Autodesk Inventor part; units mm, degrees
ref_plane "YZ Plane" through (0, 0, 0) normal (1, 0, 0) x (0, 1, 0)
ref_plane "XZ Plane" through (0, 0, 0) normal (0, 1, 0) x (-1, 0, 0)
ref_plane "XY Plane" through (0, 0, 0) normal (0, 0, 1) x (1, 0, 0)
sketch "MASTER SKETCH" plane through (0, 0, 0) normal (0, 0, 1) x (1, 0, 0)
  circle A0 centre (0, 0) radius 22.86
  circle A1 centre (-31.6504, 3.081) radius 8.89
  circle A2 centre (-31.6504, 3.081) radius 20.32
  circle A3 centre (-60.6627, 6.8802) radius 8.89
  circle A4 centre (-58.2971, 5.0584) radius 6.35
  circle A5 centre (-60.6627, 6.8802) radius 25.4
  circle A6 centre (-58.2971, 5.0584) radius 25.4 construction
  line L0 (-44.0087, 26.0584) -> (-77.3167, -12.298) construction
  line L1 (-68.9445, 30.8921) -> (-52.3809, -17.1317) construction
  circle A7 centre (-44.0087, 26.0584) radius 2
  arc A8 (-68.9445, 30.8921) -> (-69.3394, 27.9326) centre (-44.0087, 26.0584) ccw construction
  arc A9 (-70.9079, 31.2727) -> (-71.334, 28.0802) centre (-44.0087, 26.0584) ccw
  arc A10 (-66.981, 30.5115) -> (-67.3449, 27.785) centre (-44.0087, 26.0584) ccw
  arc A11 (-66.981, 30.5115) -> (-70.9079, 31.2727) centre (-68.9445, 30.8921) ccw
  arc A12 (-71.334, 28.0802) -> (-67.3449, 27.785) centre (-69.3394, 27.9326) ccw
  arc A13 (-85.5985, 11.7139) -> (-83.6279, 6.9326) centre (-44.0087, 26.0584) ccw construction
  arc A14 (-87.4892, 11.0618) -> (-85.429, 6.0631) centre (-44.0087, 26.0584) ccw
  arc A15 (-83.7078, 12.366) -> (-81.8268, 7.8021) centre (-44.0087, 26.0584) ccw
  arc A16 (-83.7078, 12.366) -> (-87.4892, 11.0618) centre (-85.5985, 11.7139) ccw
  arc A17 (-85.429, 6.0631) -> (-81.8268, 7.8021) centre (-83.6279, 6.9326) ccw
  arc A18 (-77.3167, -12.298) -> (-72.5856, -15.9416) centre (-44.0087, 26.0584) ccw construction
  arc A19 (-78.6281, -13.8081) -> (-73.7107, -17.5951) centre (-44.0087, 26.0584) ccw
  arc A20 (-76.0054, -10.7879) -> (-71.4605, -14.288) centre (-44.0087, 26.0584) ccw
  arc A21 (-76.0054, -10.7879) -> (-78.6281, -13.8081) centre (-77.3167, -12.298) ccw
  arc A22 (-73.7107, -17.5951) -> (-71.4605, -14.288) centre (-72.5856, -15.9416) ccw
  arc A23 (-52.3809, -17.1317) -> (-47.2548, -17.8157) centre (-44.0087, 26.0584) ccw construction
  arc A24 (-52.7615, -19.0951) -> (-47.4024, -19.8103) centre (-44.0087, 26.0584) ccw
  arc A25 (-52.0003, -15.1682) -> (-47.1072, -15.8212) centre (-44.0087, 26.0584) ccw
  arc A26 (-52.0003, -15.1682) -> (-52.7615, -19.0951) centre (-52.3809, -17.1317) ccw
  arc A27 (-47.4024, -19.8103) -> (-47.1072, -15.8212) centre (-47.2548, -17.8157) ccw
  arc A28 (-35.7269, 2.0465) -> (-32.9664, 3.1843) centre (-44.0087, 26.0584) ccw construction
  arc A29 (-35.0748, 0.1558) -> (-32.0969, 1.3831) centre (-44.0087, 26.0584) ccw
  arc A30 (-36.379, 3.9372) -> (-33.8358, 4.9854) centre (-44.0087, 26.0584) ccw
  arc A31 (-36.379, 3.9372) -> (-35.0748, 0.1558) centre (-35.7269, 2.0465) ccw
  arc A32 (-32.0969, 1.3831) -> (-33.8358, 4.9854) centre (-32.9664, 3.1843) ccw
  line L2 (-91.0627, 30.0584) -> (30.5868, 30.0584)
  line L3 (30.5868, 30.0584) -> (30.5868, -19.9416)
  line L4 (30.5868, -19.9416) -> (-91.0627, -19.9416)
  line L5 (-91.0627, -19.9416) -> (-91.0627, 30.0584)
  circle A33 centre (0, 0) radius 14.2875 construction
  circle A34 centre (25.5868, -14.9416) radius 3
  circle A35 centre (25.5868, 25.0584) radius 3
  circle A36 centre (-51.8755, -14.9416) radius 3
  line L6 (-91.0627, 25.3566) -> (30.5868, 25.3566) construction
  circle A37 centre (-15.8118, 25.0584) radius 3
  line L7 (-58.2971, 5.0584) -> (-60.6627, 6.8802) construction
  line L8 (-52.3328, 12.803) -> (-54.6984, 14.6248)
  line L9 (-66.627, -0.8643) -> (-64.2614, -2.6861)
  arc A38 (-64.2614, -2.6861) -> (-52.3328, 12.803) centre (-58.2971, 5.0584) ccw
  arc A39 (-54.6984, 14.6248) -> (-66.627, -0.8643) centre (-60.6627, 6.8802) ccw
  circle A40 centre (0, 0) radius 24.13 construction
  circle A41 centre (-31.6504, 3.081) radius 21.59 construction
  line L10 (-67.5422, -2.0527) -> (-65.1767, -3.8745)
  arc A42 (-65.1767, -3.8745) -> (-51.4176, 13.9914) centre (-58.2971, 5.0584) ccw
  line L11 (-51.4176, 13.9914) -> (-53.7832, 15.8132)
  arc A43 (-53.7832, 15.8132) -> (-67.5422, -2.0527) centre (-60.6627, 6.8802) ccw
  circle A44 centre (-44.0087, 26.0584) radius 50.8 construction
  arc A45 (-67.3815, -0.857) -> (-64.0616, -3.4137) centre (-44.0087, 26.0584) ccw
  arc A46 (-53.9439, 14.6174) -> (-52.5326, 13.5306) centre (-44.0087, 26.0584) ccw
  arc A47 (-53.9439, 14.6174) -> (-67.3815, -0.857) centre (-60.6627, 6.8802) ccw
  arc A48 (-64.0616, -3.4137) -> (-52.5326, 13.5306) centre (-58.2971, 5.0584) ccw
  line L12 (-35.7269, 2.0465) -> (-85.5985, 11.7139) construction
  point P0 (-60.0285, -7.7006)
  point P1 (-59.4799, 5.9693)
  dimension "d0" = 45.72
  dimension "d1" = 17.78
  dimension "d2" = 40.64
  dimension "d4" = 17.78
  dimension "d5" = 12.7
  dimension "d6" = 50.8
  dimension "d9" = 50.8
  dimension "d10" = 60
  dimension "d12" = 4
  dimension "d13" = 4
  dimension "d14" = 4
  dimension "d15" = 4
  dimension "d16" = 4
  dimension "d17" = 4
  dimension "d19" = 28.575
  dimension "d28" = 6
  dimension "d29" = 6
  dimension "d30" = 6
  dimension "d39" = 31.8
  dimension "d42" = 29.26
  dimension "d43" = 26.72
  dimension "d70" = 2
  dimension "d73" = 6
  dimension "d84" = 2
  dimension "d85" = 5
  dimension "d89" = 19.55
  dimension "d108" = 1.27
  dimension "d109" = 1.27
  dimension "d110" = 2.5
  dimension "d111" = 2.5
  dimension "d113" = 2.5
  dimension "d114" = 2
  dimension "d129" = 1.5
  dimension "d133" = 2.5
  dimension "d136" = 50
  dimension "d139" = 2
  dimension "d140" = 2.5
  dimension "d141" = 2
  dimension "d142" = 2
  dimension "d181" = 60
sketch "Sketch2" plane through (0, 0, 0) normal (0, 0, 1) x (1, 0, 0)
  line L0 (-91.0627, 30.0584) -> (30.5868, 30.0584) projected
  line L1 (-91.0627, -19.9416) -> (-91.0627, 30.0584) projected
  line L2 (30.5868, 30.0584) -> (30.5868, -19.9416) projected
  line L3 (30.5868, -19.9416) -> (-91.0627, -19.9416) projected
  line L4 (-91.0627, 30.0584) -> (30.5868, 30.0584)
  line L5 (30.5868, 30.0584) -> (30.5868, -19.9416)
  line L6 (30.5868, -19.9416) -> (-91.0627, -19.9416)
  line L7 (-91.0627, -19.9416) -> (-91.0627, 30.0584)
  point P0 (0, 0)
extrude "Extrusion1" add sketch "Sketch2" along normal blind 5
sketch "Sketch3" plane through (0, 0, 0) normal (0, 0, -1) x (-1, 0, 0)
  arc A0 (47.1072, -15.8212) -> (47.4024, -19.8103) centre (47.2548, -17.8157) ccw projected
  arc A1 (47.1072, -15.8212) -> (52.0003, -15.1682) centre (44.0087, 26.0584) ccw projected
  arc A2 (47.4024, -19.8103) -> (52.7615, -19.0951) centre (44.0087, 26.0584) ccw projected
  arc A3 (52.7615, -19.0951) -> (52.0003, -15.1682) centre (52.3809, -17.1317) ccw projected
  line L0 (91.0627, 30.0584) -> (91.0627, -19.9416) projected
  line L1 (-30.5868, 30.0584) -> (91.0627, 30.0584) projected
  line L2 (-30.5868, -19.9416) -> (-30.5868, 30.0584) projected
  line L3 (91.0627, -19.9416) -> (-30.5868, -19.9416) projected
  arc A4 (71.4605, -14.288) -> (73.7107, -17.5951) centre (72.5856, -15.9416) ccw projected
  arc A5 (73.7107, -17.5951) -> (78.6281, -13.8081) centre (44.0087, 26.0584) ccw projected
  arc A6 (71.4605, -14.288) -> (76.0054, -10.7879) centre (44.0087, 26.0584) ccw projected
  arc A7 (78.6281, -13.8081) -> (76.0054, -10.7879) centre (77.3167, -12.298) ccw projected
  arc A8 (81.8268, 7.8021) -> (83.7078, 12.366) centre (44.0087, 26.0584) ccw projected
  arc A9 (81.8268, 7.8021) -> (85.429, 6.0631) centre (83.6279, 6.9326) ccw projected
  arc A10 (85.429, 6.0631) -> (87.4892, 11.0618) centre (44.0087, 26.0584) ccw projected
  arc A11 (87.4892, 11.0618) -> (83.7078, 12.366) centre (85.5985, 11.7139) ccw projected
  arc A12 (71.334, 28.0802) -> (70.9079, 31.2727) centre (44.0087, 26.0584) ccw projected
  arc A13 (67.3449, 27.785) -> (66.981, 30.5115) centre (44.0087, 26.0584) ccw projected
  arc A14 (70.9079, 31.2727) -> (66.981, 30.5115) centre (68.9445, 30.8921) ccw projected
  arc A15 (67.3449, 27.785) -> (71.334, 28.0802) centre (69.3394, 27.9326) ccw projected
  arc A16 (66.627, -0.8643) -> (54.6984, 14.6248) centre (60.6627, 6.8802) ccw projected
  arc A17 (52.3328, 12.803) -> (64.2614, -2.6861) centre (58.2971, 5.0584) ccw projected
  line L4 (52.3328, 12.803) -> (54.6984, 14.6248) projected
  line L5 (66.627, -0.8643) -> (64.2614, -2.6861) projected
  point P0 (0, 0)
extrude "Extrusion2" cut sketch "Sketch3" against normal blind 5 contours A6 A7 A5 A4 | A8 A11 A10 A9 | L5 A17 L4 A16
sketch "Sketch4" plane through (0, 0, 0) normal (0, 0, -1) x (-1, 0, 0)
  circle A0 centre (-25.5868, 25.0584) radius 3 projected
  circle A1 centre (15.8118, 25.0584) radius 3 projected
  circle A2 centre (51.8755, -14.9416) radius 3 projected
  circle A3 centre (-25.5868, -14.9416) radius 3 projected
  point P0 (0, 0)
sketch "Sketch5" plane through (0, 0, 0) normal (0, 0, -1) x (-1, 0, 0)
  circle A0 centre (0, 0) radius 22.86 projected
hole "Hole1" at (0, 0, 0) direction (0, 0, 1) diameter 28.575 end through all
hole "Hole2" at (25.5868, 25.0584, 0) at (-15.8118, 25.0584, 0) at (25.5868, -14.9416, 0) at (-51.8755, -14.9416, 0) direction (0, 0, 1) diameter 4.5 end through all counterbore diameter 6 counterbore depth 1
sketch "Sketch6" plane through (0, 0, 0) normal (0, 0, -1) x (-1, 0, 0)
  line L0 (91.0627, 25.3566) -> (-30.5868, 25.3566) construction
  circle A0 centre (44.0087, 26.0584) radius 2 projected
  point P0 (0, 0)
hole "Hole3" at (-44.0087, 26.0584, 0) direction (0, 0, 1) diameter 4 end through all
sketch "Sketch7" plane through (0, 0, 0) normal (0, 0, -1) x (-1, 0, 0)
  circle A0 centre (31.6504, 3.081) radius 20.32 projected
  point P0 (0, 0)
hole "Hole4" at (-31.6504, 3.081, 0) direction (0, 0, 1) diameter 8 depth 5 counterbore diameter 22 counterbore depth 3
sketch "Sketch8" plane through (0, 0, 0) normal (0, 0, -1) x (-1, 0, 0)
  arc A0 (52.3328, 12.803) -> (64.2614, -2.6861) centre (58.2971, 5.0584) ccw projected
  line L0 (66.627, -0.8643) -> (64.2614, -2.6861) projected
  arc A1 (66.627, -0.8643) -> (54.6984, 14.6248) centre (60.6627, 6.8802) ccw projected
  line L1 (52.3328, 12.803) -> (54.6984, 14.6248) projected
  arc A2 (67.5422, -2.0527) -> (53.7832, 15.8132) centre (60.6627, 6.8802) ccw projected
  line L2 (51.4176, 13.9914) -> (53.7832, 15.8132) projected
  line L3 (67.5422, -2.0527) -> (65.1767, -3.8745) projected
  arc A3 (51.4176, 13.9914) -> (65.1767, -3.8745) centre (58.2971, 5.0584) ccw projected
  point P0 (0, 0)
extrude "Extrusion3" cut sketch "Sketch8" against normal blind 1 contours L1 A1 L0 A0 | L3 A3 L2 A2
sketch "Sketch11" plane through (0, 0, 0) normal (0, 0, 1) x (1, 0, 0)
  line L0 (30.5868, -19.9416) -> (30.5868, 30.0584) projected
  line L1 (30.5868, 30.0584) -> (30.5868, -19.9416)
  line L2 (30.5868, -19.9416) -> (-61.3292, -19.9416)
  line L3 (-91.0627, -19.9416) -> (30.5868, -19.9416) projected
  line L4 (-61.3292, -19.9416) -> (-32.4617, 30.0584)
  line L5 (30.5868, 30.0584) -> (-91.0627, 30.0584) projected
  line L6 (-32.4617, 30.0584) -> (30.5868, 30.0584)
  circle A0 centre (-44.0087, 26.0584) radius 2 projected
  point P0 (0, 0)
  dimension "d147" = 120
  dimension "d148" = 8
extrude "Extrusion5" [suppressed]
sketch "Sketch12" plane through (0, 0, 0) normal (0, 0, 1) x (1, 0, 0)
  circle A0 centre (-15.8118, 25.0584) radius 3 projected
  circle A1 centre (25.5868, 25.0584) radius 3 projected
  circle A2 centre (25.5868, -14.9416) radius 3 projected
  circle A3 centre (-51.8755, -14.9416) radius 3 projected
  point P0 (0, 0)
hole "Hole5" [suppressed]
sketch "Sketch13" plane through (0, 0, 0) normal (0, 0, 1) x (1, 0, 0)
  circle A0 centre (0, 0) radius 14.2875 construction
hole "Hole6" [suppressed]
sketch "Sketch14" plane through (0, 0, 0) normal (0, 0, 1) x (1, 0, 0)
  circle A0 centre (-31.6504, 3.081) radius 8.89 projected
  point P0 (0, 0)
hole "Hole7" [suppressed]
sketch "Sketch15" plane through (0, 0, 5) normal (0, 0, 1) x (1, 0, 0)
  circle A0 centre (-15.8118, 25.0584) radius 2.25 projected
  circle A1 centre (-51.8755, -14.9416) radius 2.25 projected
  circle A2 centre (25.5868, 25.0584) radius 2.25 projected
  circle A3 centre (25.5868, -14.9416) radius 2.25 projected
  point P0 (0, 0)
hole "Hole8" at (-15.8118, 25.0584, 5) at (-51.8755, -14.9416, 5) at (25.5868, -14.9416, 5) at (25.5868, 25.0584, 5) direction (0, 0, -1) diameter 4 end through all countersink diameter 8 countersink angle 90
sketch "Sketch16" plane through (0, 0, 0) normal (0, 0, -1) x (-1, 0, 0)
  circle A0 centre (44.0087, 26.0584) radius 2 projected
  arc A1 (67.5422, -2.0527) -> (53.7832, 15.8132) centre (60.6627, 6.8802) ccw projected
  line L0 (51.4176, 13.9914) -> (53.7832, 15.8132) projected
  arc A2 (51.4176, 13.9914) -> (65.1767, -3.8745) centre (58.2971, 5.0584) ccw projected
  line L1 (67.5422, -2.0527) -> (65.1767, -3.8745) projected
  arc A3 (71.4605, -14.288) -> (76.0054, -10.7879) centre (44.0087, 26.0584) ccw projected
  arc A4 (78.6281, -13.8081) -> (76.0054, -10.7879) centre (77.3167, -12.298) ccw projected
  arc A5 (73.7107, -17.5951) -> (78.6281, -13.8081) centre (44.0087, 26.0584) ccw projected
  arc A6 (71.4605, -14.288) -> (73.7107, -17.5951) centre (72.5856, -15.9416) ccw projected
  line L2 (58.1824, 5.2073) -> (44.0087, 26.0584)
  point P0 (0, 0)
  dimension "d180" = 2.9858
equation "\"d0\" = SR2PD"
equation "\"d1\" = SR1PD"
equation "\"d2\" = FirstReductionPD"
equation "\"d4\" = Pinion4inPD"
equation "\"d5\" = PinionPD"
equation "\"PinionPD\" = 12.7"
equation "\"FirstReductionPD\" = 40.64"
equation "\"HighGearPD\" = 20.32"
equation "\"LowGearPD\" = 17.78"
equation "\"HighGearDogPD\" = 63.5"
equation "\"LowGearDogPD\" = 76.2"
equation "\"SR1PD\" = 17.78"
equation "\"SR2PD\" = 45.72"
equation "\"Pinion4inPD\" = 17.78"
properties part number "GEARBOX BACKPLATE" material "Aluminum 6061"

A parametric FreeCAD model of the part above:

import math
import FreeCAD as App
import Part
import Sketcher
from FreeCAD import Vector
Q = App.Units.Quantity

doc = App.newDocument("Part")
params = doc.addObject("Spreadsheet::Sheet", "Params")
for row, (alias, value) in enumerate([
    ("sketch1_height", "50 mm"),
    ("pad1_length", "5 mm"),
    ("sketch2_radius", "2 mm"),
    ("pocket1_length", "5 mm"),
    ("hole_diameter", "28.575 mm"),
    ("sketch4_diameter", "4.5 mm"),
    ("hole2_diameter", "4.5 mm"),
    ("hole2_cbore_diameter", "6 mm"),
    ("hole2_cbore_depth", "1 mm"),
    ("sketch5_diameter", "4 mm"),
    ("hole3_diameter", "4 mm"),
    ("sketch6_diameter", "8 mm"),
    ("hole4_diameter", "8 mm"),
    ("hole4_depth", "5 mm"),
    ("hole4_cbore_diameter", "22 mm"),
    ("hole4_cbore_depth", "3 mm"),
    ("pocket2_length", "1 mm"),
    ("sketch8_diameter", "4 mm"),
    ("hole5_diameter", "4 mm"),
    ("hole5_csink_diameter", "8 mm"),
], start=1):
    params.set(f"A{row}", alias)
    params.set(f"B{row}", "=" + value)
    params.setAlias(f"B{row}", alias)

body = doc.addObject("PartDesign::Body", "Body")

sketch1 = body.newObject("Sketcher::SketchObject", "Sketch")
sketch1.AttachmentSupport = (doc.getObject("XY_Plane"), [""])
sketch1.MapMode = "FlatFace"
sketch1.addGeometry([
    Part.LineSegment(Vector(30.5868, 30.0584, 0), Vector(-91.0627, 30.0584, 0)),
    Part.LineSegment(Vector(-91.0627, 30.0584, 0), Vector(-91.0627, -19.9416, 0)),
    Part.LineSegment(Vector(-91.0627, -19.9416, 0), Vector(30.5868, -19.9416, 0)),
    Part.LineSegment(Vector(30.5868, -19.9416, 0), Vector(30.5868, 30.0584, 0)),
], False)
sketch1.addConstraint([
    Sketcher.Constraint("Coincident", 0, 2, 1, 1),
    Sketcher.Constraint("Coincident", 1, 2, 2, 1),
    Sketcher.Constraint("Coincident", 2, 2, 3, 1),
    Sketcher.Constraint("Coincident", 3, 2, 0, 1),
    Sketcher.Constraint("Horizontal", 0),
    Sketcher.Constraint("Vertical", 1),
    Sketcher.Constraint("Horizontal", 2),
    Sketcher.Constraint("Vertical", 3),
    Sketcher.Constraint("DistanceY", 1, 2, 1, 1, 50.0),
    Sketcher.Constraint("DistanceX", 0, 2, 0, 1, 121.6495),
    Sketcher.Constraint("DistanceX", 0, 2, -1, 1, 91.0627),
    Sketcher.Constraint("DistanceY", -1, 1, 0, 2, 30.0584),
])
sketch1.setExpression("Constraints[8]", "Params.sketch1_height")
pad1 = body.newObject("PartDesign::Pad", "Pad")
pad1.Profile = sketch1
pad1.setExpression("Length", "Params.pad1_length")

sketch2 = body.newObject("Sketcher::SketchObject", "Sketch001")
sketch2.AttachmentSupport = (doc.getObject("XY_Plane"), [""])
sketch2.MapMode = "FlatFace"
sketch2.addGeometry([
    Part.ArcOfCircle(Part.Circle(Vector(-43.999448, 26.071174, 0), Vector(0, 0, 1), 48.815697), math.radians(-130.968862), math.radians(-124.232021)),
    Part.ArcOfCircle(Part.Circle(Vector(-72.5856, -15.9416, 0), Vector(0, 0, 1), 2.000061), math.radians(-124.232759), math.radians(55.768853)),
    Part.ArcOfCircle(Part.Circle(Vector(-44.002571, 26.066862, 0), Vector(0, 0, 1), 52.810414), math.radians(-130.969502), math.radians(-124.231846)),
    Part.ArcOfCircle(Part.Circle(Vector(-77.3167, -12.298, 0), Vector(0, 0, 1), 2.000043), math.radians(49.030484), math.radians(229.028321)),
    Part.ArcOfCircle(Part.Circle(Vector(-44.011275, 26.057249, 0), Vector(0, 0, 1), 41.991242), math.radians(-160.970792), math.radians(-154.231436)),
    Part.ArcOfCircle(Part.Circle(Vector(-83.6279, 6.9326, 0), Vector(0, 0, 1), 1.999998), math.radians(-154.230583), math.radians(25.769417)),
    Part.ArcOfCircle(Part.Circle(Vector(-44.012669, 26.056626, 0), Vector(0, 0, 1), 45.989711), math.radians(-160.970956), math.radians(-154.231306)),
    Part.ArcOfCircle(Part.Circle(Vector(-85.5985, 11.7139, 0), Vector(0, 0, 1), 1.999995), math.radians(19.029248), math.radians(199.029248)),
    Part.LineSegment(Vector(-64.2614, -2.6861, 0), Vector(-66.627, -0.8643, 0)),
    Part.ArcOfCircle(Part.Circle(Vector(-60.6627, 6.8802, 0), Vector(0, 0, 1), 9.774976), math.radians(52.39928), math.radians(232.398922)),
    Part.LineSegment(Vector(-54.6984, 14.6248, 0), Vector(-52.3328, 12.803, 0)),
    Part.ArcOfCircle(Part.Circle(Vector(-58.2971, 5.0584, 0), Vector(0, 0, 1), 9.775055), math.radians(-127.601078), math.radians(52.39928)),
], False)
sketch2.addConstraint([
    Sketcher.Constraint("Tangent", 0, 2, 1, 2),
    Sketcher.Constraint("Tangent", 1, 1, 2, 2),
    Sketcher.Constraint("Tangent", 2, 1, 3, 2),
    Sketcher.Constraint("Tangent", 3, 1, 0, 1),
    Sketcher.Constraint("Tangent", 4, 2, 5, 2),
    Sketcher.Constraint("Tangent", 5, 1, 6, 2),
    Sketcher.Constraint("Tangent", 6, 1, 7, 2),
    Sketcher.Constraint("Tangent", 7, 1, 4, 1),
    Sketcher.Constraint("Tangent", 8, 2, 9, 2),
    Sketcher.Constraint("Tangent", 9, 1, 10, 1),
    Sketcher.Constraint("Tangent", 10, 2, 11, 2),
    Sketcher.Constraint("Tangent", 11, 1, 8, 1),
    Sketcher.Constraint("Equal", 1, 3),
    Sketcher.Constraint("Equal", 3, 5),
    Sketcher.Constraint("Equal", 5, 7),
    Sketcher.Constraint("Equal", 9, 11),
    Sketcher.Constraint("Radius", 1, 2.0),
    Sketcher.Constraint("Angle", 8, Q("142.3994 deg")),
    Sketcher.Constraint("Radius", 9, 9.775),
    Sketcher.Constraint("DistanceY", 1, 3, 11, 3, 21.0),
    Sketcher.Constraint("Radius", 0, 48.8157),
    Sketcher.Constraint("Radius", 2, 52.8104),
    Sketcher.Constraint("Radius", 4, 41.9912),
    Sketcher.Constraint("Radius", 6, 45.9897),
    Sketcher.Constraint("DistanceY", 3, 3, 4, 2, 20.1),
    Sketcher.Constraint("DistanceX", 6, 3, 2, 3, 0.01),
    Sketcher.Constraint("DistanceX", 9, 3, 6, 3, 16.65),
    Sketcher.Constraint("DistanceY", 0, 2, 3, 3, 1.99),
    Sketcher.Constraint("DistanceX", 4, 2, 3, 3, 4.51),
    Sketcher.Constraint("DistanceX", 7, 1, 5, 3, 0.08),
    Sketcher.Constraint("DistanceX", 8, 2, 11, 3, 8.33),
    Sketcher.Constraint("DistanceY", 3, 3, -1, 1, 12.298),
    Sketcher.Constraint("DistanceX", 5, 3, -1, 1, 83.628),
    Sketcher.Constraint("DistanceY", -1, 1, 7, 3, 11.714),
])
sketch2.setExpression("Constraints[16]", "Params.sketch2_radius")
pocket1 = body.newObject("PartDesign::Pocket", "Pocket")
pocket1.Profile = sketch2
pocket1.setExpression("Length", "Params.pocket1_length")
pocket1.Reversed = True

sketch3 = body.newObject("Sketcher::SketchObject", "Sketch002")
sketch3.AttachmentSupport = (doc.getObject("XY_Plane"), [""])
sketch3.MapMode = "FlatFace"
sketch3.addGeometry(Part.Circle(Vector(0, 0, 0), Vector(0, 0, 1), 14.2875), False)
sketch3.addConstraint([
    Sketcher.Constraint("Coincident", 0, 3, -1, 1),
    Sketcher.Constraint("Diameter", 0, 28.575),
])
doc.recompute()
hole = body.newObject("PartDesign::Hole", "Hole")
hole.Profile = sketch3
hole.ThreadType = "None"
hole.setExpression("Diameter", "Params.hole_diameter")
hole.DepthType = "ThroughAll"
hole.Reversed = True

sketch4 = body.newObject("Sketcher::SketchObject", "Sketch003")
sketch4.AttachmentSupport = (doc.getObject("XY_Plane"), [""])
sketch4.MapMode = "FlatFace"
sketch4.addGeometry([
    Part.Circle(Vector(25.5868, 25.0584, 0), Vector(0, 0, 1), 2.25),
    Part.Circle(Vector(-15.8118, 25.0584, 0), Vector(0, 0, 1), 2.25),
    Part.Circle(Vector(25.5868, -14.9416, 0), Vector(0, 0, 1), 2.25),
    Part.Circle(Vector(-51.8755, -14.9416, 0), Vector(0, 0, 1), 2.25),
], False)
sketch4.addConstraint([
    Sketcher.Constraint("Equal", 0, 1),
    Sketcher.Constraint("Equal", 1, 2),
    Sketcher.Constraint("Equal", 2, 3),
    Sketcher.Constraint("Horizontal", 0, 3, 1, 3),
    Sketcher.Constraint("Horizontal", 2, 3, 3, 3),
    Sketcher.Constraint("Vertical", 0, 3, 2, 3),
    Sketcher.Constraint("Diameter", 0, 4.5),
    Sketcher.Constraint("DistanceY", 2, 3, 0, 3, 40.0),
    Sketcher.Constraint("DistanceX", -1, 1, 0, 3, 25.5868),
    Sketcher.Constraint("DistanceY", -1, 1, 0, 3, 25.0584),
    Sketcher.Constraint("DistanceX", 1, 3, -1, 1, 15.8118),
    Sketcher.Constraint("DistanceX", 3, 3, -1, 1, 51.8755),
])
sketch4.setExpression("Constraints[6]", "Params.sketch4_diameter")
doc.recompute()
hole2 = body.newObject("PartDesign::Hole", "Hole001")
hole2.Profile = sketch4
hole2.ThreadType = "None"
hole2.setExpression("Diameter", "Params.hole2_diameter")
hole2.DepthType = "ThroughAll"
hole2.HoleCutType = "Counterbore"
hole2.setExpression("HoleCutDiameter", "Params.hole2_cbore_diameter")
hole2.setExpression("HoleCutDepth", "Params.hole2_cbore_depth")
hole2.Reversed = True

sketch5 = body.newObject("Sketcher::SketchObject", "Sketch004")
sketch5.AttachmentSupport = (doc.getObject("XY_Plane"), [""])
sketch5.MapMode = "FlatFace"
sketch5.addGeometry(Part.Circle(Vector(-44.0087, 26.0584, 0), Vector(0, 0, 1), 2), False)
sketch5.addConstraint([
    Sketcher.Constraint("Diameter", 0, 4.0),
    Sketcher.Constraint("DistanceX", 0, 3, -1, 1, 44.0087),
    Sketcher.Constraint("DistanceY", -1, 1, 0, 3, 26.0584),
])
sketch5.setExpression("Constraints[0]", "Params.sketch5_diameter")
doc.recompute()
hole3 = body.newObject("PartDesign::Hole", "Hole002")
hole3.Profile = sketch5
hole3.ThreadType = "None"
hole3.setExpression("Diameter", "Params.hole3_diameter")
hole3.DepthType = "ThroughAll"
hole3.Reversed = True

sketch6 = body.newObject("Sketcher::SketchObject", "Sketch005")
sketch6.AttachmentSupport = (doc.getObject("XY_Plane"), [""])
sketch6.MapMode = "FlatFace"
sketch6.addGeometry(Part.Circle(Vector(-31.6504, 3.081, 0), Vector(0, 0, 1), 4), False)
sketch6.addConstraint([
    Sketcher.Constraint("Diameter", 0, 8.0),
    Sketcher.Constraint("DistanceY", -1, 1, 0, 3, 3.081),
    Sketcher.Constraint("DistanceX", 0, 3, -1, 1, 31.6504),
])
sketch6.setExpression("Constraints[0]", "Params.sketch6_diameter")
doc.recompute()
hole4 = body.newObject("PartDesign::Hole", "Hole003")
hole4.Profile = sketch6
hole4.ThreadType = "None"
hole4.setExpression("Diameter", "Params.hole4_diameter")
hole4.DepthType = "Dimension"
hole4.setExpression("Depth", "Params.hole4_depth")
hole4.DrillPoint = "Flat"
hole4.HoleCutType = "Counterbore"
hole4.setExpression("HoleCutDiameter", "Params.hole4_cbore_diameter")
hole4.setExpression("HoleCutDepth", "Params.hole4_cbore_depth")
hole4.Reversed = True

sketch7 = body.newObject("Sketcher::SketchObject", "Sketch006")
sketch7.AttachmentSupport = (doc.getObject("XY_Plane"), [""])
sketch7.MapMode = "FlatFace"
sketch7.addGeometry([
    Part.LineSegment(Vector(-65.1767, -3.8745, 0), Vector(-67.5422, -2.0527, 0)),
    Part.ArcOfCircle(Part.Circle(Vector(-60.6627, 6.8802, 0), Vector(0, 0, 1), 11.274938), math.radians(52.39934), math.radians(232.39903)),
    Part.LineSegment(Vector(-53.7832, 15.8132, 0), Vector(-51.4176, 13.9914, 0)),
    Part.ArcOfCircle(Part.Circle(Vector(-58.2971, 5.0584, 0), Vector(0, 0, 1), 11.275017), math.radians(-127.601373), math.radians(52.39934)),
], False)
sketch7.addConstraint([
    Sketcher.Constraint("Tangent", 0, 2, 1, 2),
    Sketcher.Constraint("Tangent", 1, 1, 2, 1),
    Sketcher.Constraint("Tangent", 2, 2, 3, 2),
    Sketcher.Constraint("Tangent", 3, 1, 0, 1),
    Sketcher.Constraint("Equal", 1, 3),
    Sketcher.Constraint("Angle", 2, Q("-37.6006 deg")),
    Sketcher.Constraint("Radius", 1, 11.275),
    Sketcher.Constraint("DistanceX", 3, 3, -1, 1, 58.297),
    Sketcher.Constraint("DistanceX", 0, 2, 3, 3, 9.245),
    Sketcher.Constraint("DistanceY", -1, 1, 1, 3, 6.8802),
])
pocket2 = body.newObject("PartDesign::Pocket", "Pocket001")
pocket2.Profile = sketch7
pocket2.setExpression("Length", "Params.pocket2_length")
pocket2.Reversed = True

sketch8 = body.newObject("Sketcher::SketchObject", "Sketch007")
sketch8.AttachmentSupport = (doc.getObject("XY_Plane"), [""])
sketch8.MapMode = "FlatFace"
sketch8.AttachmentOffset = App.Placement(Vector(0, 0, 5), App.Rotation())
sketch8.addGeometry([
    Part.Circle(Vector(-15.8118, 25.0584, 0), Vector(0, 0, 1), 2),
    Part.Circle(Vector(-51.8755, -14.9416, 0), Vector(0, 0, 1), 2),
    Part.Circle(Vector(25.5868, -14.9416, 0), Vector(0, 0, 1), 2),
    Part.Circle(Vector(25.5868, 25.0584, 0), Vector(0, 0, 1), 2),
], False)
sketch8.addConstraint([
    Sketcher.Constraint("Equal", 0, 1),
    Sketcher.Constraint("Equal", 1, 2),
    Sketcher.Constraint("Equal", 2, 3),
    Sketcher.Constraint("Horizontal", 1, 3, 2, 3),
    Sketcher.Constraint("Horizontal", 0, 3, 3, 3),
    Sketcher.Constraint("Vertical", 2, 3, 3, 3),
    Sketcher.Constraint("Diameter", 0, 4.0),
    Sketcher.Constraint("DistanceY", 1, 3, 0, 3, 40.0),
    Sketcher.Constraint("DistanceX", 0, 3, -1, 1, 15.8118),
    Sketcher.Constraint("DistanceY", -1, 1, 0, 3, 25.0584),
    Sketcher.Constraint("DistanceX", 1, 3, -1, 1, 51.8755),
    Sketcher.Constraint("DistanceX", -1, 1, 2, 3, 25.5868),
])
sketch8.setExpression("Constraints[6]", "Params.sketch8_diameter")
doc.recompute()
hole5 = body.newObject("PartDesign::Hole", "Hole004")
hole5.Profile = sketch8
hole5.ThreadType = "None"
hole5.setExpression("Diameter", "Params.hole5_diameter")
hole5.DepthType = "ThroughAll"
hole5.HoleCutType = "Countersink"
hole5.setExpression("HoleCutDiameter", "Params.hole5_csink_diameter")
hole5.HoleCutCountersinkAngle = 90

doc.recompute()
